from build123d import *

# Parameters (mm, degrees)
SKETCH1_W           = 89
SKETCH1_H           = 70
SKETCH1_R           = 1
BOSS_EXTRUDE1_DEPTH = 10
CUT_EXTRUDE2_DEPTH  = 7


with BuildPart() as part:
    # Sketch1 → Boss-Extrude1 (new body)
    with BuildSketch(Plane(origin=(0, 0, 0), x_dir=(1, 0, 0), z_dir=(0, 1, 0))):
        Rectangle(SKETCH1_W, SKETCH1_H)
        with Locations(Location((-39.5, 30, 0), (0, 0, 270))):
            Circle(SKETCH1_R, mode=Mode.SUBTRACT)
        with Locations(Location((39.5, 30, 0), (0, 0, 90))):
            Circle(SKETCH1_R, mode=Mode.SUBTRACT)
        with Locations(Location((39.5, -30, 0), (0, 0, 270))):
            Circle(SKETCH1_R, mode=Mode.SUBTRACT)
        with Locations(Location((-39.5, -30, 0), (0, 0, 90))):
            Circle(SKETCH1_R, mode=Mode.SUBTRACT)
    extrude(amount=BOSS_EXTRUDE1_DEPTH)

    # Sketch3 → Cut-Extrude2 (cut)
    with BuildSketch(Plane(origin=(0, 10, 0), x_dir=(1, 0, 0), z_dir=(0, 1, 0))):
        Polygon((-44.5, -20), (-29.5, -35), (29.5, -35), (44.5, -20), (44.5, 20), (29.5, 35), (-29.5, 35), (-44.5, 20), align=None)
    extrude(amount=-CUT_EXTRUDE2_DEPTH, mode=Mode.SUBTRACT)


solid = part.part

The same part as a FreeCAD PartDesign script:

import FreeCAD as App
import Part
import Sketcher

doc = App.newDocument("Part")
body = doc.addObject("PartDesign::Body", "Body")

# Sketch on XZ plane
sketch1 = doc.addObject("Sketcher::SketchObject", "Sketch")
body.addObject(sketch1)
sketch1.AttachmentSupport = (doc.XZ_Plane, [""])
sketch1.MapMode = "FlatFace"
sketch1.addGeometry(Part.LineSegment(App.Vector(-44.5, -35, 0), App.Vector(-44.5, 35, 0)), False)
sketch1.addGeometry(Part.LineSegment(App.Vector(-44.5, 35, 0), App.Vector(44.5, 35, 0)), False)
sketch1.addGeometry(Part.LineSegment(App.Vector(44.5, 35, 0), App.Vector(44.5, -35, 0)), False)
sketch1.addGeometry(Part.LineSegment(App.Vector(44.5, -35, 0), App.Vector(-44.5, -35, 0)), False)
sketch1.addGeometry(Part.Circle(App.Vector(-39.5, 30, 0), App.Vector(0, 0, 1), 1), False)
sketch1.addGeometry(Part.Circle(App.Vector(39.5, 30, 0), App.Vector(0, 0, 1), 1), False)
sketch1.addGeometry(Part.Circle(App.Vector(-39.5, -30, 0), App.Vector(0, 0, 1), 1), False)
sketch1.addGeometry(Part.Circle(App.Vector(39.5, -30, 0), App.Vector(0, 0, 1), 1), False)
sketch1.addConstraint(Sketcher.Constraint("Coincident", 0, 2, 1, 1))
sketch1.addConstraint(Sketcher.Constraint("Coincident", 1, 2, 2, 1))
sketch1.addConstraint(Sketcher.Constraint("Coincident", 2, 2, 3, 1))
sketch1.addConstraint(Sketcher.Constraint("Coincident", 3, 2, 0, 1))
sketch1.addConstraint(Sketcher.Constraint("Vertical", 0))
sketch1.addConstraint(Sketcher.Constraint("Horizontal", 1))
sketch1.addConstraint(Sketcher.Constraint("Vertical", 2))
sketch1.addConstraint(Sketcher.Constraint("Horizontal", 3))
sketch1.addConstraint(Sketcher.Constraint("Equal", 4, 5))
sketch1.addConstraint(Sketcher.Constraint("Equal", 5, 6))
sketch1.addConstraint(Sketcher.Constraint("Equal", 6, 7))
sketch1.addConstraint(Sketcher.Constraint("Symmetric", 5, 3, 6, 3, -1, 1))
sketch1.addConstraint(Sketcher.Constraint("Symmetric", 4, 3, 7, 3, -1, 1))
sketch1.addConstraint(Sketcher.Constraint("Symmetric", 0, 2, 2, 2, -1, 1))
sketch1.addConstraint(Sketcher.Constraint("Symmetric", 4, 3, 5, 3, -2))
sketch1.addConstraint(Sketcher.Constraint("Diameter", 4, 2.0))
sketch1.addConstraint(Sketcher.Constraint("DistanceX", 1, 1, 1, 2, 89.0))
sketch1.addConstraint(Sketcher.Constraint("DistanceY", 0, 1, 0, 2, 70.0))
sketch1.addConstraint(Sketcher.Constraint("DistanceY", -1, 1, 4, 3, 30.0))
sketch1.addConstraint(Sketcher.Constraint("DistanceX", 4, 3, 5, 3, 79.0))
pad1 = doc.addObject("PartDesign::Pad", "Pad")
body.addObject(pad1)
pad1.Profile = sketch1
pad1.Length = 10
pad1.Reversed = True

# Sketch on XZ plane
sketch2 = doc.addObject("Sketcher::SketchObject", "Sketch001")
body.addObject(sketch2)
sketch2.AttachmentSupport = (doc.XZ_Plane, [""])
sketch2.MapMode = "FlatFace"
sketch2.AttachmentOffset = App.Placement(App.Vector(0, 0, -10), App.Rotation())
sketch2.addGeometry(Part.LineSegment(App.Vector(-44, 20, 0), App.Vector(-30, 35, 0)), False)
sketch2.addGeometry(Part.LineSegment(App.Vector(-30, 35, 0), App.Vector(30, 35, 0)), False)
sketch2.addGeometry(Part.LineSegment(App.Vector(30, 35, 0), App.Vector(44, 20, 0)), False)
sketch2.addGeometry(Part.LineSegment(App.Vector(44, 20, 0), App.Vector(44, -20, 0)), False)
sketch2.addGeometry(Part.LineSegment(App.Vector(44, -20, 0), App.Vector(30, -35, 0)), False)
sketch2.addGeometry(Part.LineSegment(App.Vector(30, -35, 0), App.Vector(-30, -35, 0)), False)
sketch2.addGeometry(Part.LineSegment(App.Vector(-30, -35, 0), App.Vector(-44, -20, 0)), False)
sketch2.addGeometry(Part.LineSegment(App.Vector(-44, -20, 0), App.Vector(-44, 20, 0)), False)
sketch2.addConstraint(Sketcher.Constraint("Coincident", 0, 2, 1, 1))
sketch2.addConstraint(Sketcher.Constraint("Coincident", 1, 2, 2, 1))
sketch2.addConstraint(Sketcher.Constraint("Coincident", 2, 2, 3, 1))
sketch2.addConstraint(Sketcher.Constraint("Coincident", 3, 2, 4, 1))
sketch2.addConstraint(Sketcher.Constraint("Coincident", 4, 2, 5, 1))
sketch2.addConstraint(Sketcher.Constraint("Coincident", 5, 2, 6, 1))
sketch2.addConstraint(Sketcher.Constraint("Coincident", 6, 2, 7, 1))
sketch2.addConstraint(Sketcher.Constraint("Coincident", 7, 2, 0, 1))
sketch2.addConstraint(Sketcher.Constraint("Horizontal", 1))
sketch2.addConstraint(Sketcher.Constraint("Vertical", 3))
sketch2.addConstraint(Sketcher.Constraint("Horizontal", 5))
sketch2.addConstraint(Sketcher.Constraint("Vertical", 7))
sketch2.addConstraint(Sketcher.Constraint("Symmetric", 0, 2, 4, 2, -1, 1))
sketch2.addConstraint(Sketcher.Constraint("Symmetric", 2, 2, 6, 2, -1, 1))
sketch2.addConstraint(Sketcher.Constraint("Perpendicular", 0, 2))
sketch2.addConstraint(Sketcher.Constraint("Perpendicular", 2, 4))
sketch2.addConstraint(Sketcher.Constraint("Perpendicular", 4, 6))
sketch2.addConstraint(Sketcher.Constraint("Horizontal", 3, 2, 6, 2))
sketch2.addConstraint(Sketcher.Constraint("Vertical", 1, 2, 4, 2))
sketch2.addConstraint(Sketcher.Constraint("DistanceX", 1, 1, 1, 2, 59.0))
sketch2.addConstraint(Sketcher.Constraint("DistanceY", 3, 2, 3, 1, 40.0))
sketch2.addConstraint(Sketcher.Constraint("DistanceY", -1, 1, 0, 2, 35.0))
pocket1 = doc.addObject("PartDesign::Pocket", "Pocket")
body.addObject(pocket1)
pocket1.Profile = sketch2
pocket1.Length = 7
pocket1.Reversed = True

doc.recompute()
